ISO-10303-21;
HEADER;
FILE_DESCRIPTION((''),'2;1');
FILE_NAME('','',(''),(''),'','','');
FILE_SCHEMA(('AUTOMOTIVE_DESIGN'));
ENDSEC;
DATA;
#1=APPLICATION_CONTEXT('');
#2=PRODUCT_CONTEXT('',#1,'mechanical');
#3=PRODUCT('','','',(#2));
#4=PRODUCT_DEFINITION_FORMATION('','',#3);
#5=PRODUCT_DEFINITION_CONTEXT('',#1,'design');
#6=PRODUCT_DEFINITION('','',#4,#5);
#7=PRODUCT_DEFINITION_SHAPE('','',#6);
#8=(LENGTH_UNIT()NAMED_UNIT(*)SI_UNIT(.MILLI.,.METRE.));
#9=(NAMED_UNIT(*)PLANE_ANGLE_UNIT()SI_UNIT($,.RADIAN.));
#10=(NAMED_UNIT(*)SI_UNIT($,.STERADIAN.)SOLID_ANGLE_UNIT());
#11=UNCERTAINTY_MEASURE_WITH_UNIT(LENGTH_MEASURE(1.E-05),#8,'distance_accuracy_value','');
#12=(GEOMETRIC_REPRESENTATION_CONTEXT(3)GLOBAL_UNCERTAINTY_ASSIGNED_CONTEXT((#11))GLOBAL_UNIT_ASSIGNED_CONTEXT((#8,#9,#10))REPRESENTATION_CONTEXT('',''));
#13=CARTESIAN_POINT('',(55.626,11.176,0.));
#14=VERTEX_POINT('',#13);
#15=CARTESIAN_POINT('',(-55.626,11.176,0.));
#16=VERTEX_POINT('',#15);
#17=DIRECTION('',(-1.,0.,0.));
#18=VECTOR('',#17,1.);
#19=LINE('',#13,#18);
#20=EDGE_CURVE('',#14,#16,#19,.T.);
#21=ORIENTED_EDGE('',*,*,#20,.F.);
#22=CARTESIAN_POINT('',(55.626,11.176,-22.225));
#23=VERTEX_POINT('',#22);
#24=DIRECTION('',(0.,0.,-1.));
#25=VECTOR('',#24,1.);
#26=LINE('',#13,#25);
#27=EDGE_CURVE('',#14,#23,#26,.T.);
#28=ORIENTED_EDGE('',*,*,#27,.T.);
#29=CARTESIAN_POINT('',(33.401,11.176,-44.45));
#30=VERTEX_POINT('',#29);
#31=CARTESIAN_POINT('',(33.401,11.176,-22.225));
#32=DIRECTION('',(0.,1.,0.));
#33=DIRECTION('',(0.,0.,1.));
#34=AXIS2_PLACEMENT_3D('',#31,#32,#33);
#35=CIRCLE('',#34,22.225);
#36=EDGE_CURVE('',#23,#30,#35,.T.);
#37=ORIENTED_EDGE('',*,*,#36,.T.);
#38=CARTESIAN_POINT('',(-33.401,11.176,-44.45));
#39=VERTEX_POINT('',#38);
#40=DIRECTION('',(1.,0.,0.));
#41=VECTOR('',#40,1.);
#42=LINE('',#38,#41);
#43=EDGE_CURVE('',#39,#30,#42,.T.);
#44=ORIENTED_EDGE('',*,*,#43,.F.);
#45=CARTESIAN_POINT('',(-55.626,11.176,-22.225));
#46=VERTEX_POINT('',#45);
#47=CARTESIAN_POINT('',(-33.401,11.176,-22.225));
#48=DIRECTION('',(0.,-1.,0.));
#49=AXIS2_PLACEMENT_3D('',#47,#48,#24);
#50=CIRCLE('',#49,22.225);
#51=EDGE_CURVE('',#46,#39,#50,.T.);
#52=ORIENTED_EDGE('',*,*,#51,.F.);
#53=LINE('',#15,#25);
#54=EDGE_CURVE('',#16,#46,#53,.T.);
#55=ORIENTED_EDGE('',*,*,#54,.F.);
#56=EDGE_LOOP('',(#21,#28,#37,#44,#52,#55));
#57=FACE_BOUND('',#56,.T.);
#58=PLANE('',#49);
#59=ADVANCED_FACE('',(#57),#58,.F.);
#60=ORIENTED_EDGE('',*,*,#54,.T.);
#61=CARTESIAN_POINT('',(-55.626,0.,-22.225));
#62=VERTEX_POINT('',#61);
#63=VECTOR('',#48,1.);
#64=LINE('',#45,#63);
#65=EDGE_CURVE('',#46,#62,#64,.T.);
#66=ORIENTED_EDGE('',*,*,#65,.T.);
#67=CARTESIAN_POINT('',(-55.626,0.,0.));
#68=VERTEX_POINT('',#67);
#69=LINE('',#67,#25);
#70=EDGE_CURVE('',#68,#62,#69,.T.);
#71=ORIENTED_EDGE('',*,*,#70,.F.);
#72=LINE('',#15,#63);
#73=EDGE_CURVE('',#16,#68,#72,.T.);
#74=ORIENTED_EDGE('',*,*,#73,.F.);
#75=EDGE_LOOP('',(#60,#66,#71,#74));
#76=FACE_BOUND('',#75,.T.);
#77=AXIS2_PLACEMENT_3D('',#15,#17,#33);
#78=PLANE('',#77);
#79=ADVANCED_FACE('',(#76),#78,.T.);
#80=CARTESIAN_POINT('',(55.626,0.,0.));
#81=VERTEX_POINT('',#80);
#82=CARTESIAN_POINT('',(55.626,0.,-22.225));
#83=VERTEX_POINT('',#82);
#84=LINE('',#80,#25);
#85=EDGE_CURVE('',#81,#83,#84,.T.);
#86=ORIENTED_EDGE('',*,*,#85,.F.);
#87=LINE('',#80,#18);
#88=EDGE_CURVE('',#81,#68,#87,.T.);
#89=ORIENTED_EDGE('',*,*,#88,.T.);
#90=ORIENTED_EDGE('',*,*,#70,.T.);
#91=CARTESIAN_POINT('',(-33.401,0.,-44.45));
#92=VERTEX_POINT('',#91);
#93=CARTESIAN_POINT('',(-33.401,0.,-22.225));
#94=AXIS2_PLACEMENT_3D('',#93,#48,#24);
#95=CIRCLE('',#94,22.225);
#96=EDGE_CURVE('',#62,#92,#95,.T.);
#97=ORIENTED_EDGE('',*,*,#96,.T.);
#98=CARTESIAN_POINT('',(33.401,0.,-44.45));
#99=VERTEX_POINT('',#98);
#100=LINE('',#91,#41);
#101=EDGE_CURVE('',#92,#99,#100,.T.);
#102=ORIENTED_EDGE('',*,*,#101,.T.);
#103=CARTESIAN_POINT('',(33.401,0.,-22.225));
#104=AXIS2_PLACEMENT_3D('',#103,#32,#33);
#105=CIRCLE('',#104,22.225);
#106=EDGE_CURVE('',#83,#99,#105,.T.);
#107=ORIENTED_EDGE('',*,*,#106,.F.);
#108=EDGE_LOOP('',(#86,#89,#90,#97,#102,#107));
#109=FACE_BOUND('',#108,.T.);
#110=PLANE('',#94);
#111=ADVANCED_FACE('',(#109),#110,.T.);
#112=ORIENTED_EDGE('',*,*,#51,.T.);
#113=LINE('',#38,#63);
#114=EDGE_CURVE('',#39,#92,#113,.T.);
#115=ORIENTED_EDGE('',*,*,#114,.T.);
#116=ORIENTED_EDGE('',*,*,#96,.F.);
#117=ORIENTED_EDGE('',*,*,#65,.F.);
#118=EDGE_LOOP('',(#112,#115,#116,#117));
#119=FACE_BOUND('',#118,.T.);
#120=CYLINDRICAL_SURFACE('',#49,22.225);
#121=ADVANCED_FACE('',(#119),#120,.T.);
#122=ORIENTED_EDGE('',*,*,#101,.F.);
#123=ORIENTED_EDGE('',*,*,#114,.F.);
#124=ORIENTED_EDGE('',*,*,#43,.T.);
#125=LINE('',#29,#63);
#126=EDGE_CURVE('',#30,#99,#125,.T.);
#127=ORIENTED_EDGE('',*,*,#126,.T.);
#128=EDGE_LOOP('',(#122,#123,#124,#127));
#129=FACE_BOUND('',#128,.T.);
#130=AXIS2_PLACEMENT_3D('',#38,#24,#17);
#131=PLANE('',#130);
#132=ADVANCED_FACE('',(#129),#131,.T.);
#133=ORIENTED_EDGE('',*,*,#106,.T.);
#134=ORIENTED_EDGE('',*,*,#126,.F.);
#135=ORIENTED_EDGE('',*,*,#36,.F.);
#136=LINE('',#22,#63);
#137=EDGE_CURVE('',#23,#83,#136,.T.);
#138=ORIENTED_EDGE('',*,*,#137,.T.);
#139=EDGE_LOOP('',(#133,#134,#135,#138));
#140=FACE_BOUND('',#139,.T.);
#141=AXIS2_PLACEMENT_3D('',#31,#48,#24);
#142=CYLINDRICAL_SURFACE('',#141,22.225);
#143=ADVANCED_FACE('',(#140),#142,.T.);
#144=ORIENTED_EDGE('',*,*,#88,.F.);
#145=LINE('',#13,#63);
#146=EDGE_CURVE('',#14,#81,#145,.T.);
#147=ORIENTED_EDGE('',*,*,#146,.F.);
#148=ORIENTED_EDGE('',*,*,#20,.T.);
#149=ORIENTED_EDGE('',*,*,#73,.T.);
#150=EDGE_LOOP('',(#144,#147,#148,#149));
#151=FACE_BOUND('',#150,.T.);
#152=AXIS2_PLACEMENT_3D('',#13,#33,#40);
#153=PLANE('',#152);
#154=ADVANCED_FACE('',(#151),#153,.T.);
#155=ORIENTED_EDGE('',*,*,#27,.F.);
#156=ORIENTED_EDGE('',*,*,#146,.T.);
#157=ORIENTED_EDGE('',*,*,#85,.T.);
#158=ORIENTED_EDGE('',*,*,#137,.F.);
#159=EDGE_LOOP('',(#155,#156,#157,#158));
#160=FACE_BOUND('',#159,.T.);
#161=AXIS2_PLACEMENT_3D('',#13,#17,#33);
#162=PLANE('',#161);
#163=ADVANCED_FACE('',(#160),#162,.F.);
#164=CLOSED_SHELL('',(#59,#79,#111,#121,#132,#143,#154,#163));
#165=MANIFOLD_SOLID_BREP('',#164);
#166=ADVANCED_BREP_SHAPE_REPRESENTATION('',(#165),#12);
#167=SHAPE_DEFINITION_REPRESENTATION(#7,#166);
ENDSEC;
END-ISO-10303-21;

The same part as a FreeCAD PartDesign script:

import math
import FreeCAD as App
import Part
import Sketcher

V = App.Vector
Q = App.Units.Quantity

doc = App.newDocument("Part")
params = doc.addObject("Spreadsheet::Sheet", "Params")
for row, (alias, value) in enumerate([
    ("sketch1_radius", "0.875 in"),
    ("sketch1_width", "4.38 in"),
    ("sketch1_height", "0.875 in"),
    ("pad1_length", "0.44 in"),
], start=1):
    params.set(f"A{row}", alias)
    params.set(f"B{row}", "=" + value)
    params.setAlias(f"B{row}", alias)

body = doc.addObject("PartDesign::Body", "Body")

# Sketch on XZ plane
sketch1 = body.newObject("Sketcher::SketchObject", "Sketch")
sketch1.AttachmentSupport = (doc.getObject("XZ_Plane"), [""])
sketch1.MapMode = "FlatFace"
sketch1.addGeometry(Part.LineSegment(V(-55.626, 0, 0), V(55.626, 0, 0)), False)
sketch1.addGeometry(Part.LineSegment(V(55.626, 0, 0), V(55.626, -22.225, 0)), False)
sketch1.addGeometry(Part.ArcOfCircle(Part.Circle(V(33.401, -22.225, 0), V(0, 0, 1), 22.225), math.radians(-90), math.radians(0)), False)
sketch1.addGeometry(Part.LineSegment(V(33.401, -44.45, 0), V(-33.401, -44.45, 0)), False)
sketch1.addGeometry(Part.ArcOfCircle(Part.Circle(V(-33.401, -22.225, 0), V(0, 0, 1), 22.225), math.radians(180), math.radians(270)), False)
sketch1.addGeometry(Part.LineSegment(V(-55.626, -22.225, 0), V(-55.626, 0, 0)), False)
sketch1.addConstraint(Sketcher.Constraint("Coincident", 0, 2, 1, 1))
sketch1.addConstraint(Sketcher.Constraint("Tangent", 1, 2, 2, 2))
sketch1.addConstraint(Sketcher.Constraint("Tangent", 2, 1, 3, 1))
sketch1.addConstraint(Sketcher.Constraint("Tangent", 3, 2, 4, 2))
sketch1.addConstraint(Sketcher.Constraint("Tangent", 4, 1, 5, 1))
sketch1.addConstraint(Sketcher.Constraint("Coincident", 5, 2, 0, 1))
sketch1.addConstraint(Sketcher.Constraint("Horizontal", 0))
sketch1.addConstraint(Sketcher.Constraint("Vertical", 1))
sketch1.addConstraint(Sketcher.Constraint("Horizontal", 3))
sketch1.addConstraint(Sketcher.Constraint("Vertical", 5))
sketch1.addConstraint(Sketcher.Constraint("Equal", 2, 4))
sketch1.addConstraint(Sketcher.Constraint("Symmetric", 0, 2, 5, 2, -1, 1))
sketch1.addConstraint(Sketcher.Constraint("Radius", 2, Q("0.875 in")))
sketch1.addConstraint(Sketcher.Constraint("DistanceX", 0, 1, 0, 2, Q("4.38 in")))
sketch1.addConstraint(Sketcher.Constraint("DistanceY", 1, 2, 1, 1, Q("0.875 in")))
sketch1.setExpression("Constraints[12]", "Params.sketch1_radius")
sketch1.setExpression("Constraints[13]", "Params.sketch1_width")
sketch1.setExpression("Constraints[14]", "Params.sketch1_height")
pad1 = body.newObject("PartDesign::Pad", "Pad")
pad1.Profile = sketch1
pad1.setExpression("Length", "Params.pad1_length")
pad1.Reversed = True

doc.recompute()
